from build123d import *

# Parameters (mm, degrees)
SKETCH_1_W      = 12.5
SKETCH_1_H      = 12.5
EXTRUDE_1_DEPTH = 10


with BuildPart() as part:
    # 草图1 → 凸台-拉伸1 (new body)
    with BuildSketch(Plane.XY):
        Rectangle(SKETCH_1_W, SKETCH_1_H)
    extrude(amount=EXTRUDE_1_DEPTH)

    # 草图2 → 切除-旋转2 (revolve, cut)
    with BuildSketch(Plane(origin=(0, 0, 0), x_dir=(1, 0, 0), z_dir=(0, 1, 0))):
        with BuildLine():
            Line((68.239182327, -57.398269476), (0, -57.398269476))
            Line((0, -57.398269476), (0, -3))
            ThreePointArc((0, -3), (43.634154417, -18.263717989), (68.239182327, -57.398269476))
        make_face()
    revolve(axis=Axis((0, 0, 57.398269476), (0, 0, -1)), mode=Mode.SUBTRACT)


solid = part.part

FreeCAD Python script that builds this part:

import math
import FreeCAD as App
import Part
import Sketcher
from FreeCAD import Vector
Q = App.Units.Quantity


def add_polygon(sketch, points):
    """Adds a closed chain of lines whose ends are joined by coincident constraints."""
    first, n = sketch.GeometryCount, len(points)
    for a, b in zip(points, points[1:] + points[:1]):
        sketch.addGeometry(Part.LineSegment(App.Vector(*a, 0), App.Vector(*b, 0)), False)
    for i in range(n):
        sketch.addConstraint(Sketcher.Constraint("Coincident", first + i, 2, first + (i + 1) % n, 1))

doc = App.newDocument("Part")
params = doc.addObject("Spreadsheet::Sheet", "Params")
for row, (alias, value) in enumerate([
    ("sketch1_width", "12.5 mm"),
    ("pad1_length", "10 mm"),
    ("sketch2_radius", "70 mm"),
    ("groove_angle", "360 deg"),
], start=1):
    params.set(f"A{row}", alias)
    params.set(f"B{row}", "=" + value)
    params.setAlias(f"B{row}", alias)

body = doc.addObject("PartDesign::Body", "Body")

# Sketch on XY plane
sketch1 = doc.addObject("Sketcher::SketchObject", "Sketch")
body.addObject(sketch1)
sketch1.AttachmentSupport = (doc.XY_Plane, [""])
sketch1.MapMode = "FlatFace"
add_polygon(sketch1, [(-6, 6), (-6, -6), (6, -6), (6, 6)])  # lines 0-3
sketch1.addConstraint(Sketcher.Constraint("Vertical", 0))
sketch1.addConstraint(Sketcher.Constraint("Horizontal", 1))
sketch1.addConstraint(Sketcher.Constraint("Vertical", 2))
sketch1.addConstraint(Sketcher.Constraint("Horizontal", 3))
sketch1.addConstraint(Sketcher.Constraint("Symmetric", 0, 2, 2, 2, -1, 1))
sketch1.addConstraint(Sketcher.Constraint("Equal", 3, 0))
sketch1.addConstraint(Sketcher.Constraint("DistanceX", 1, 1, 1, 2, Q("12.5 mm")))
sketch1.setExpression("Constraints[10]", "Params.sketch1_width")
pad1 = doc.addObject("PartDesign::Pad", "Pad")
body.addObject(pad1)
pad1.Profile = sketch1
pad1.setExpression("Length", "Params.pad1_length")

# Sketch on XZ plane
sketch2 = doc.addObject("Sketcher::SketchObject", "Sketch001")
body.addObject(sketch2)
sketch2.AttachmentSupport = (doc.XZ_Plane, [""])
sketch2.MapMode = "FlatFace"
sketch2.addGeometry(Part.LineSegment(Vector(0, 57, 0), Vector(68, 57, 0)), False)
sketch2.addGeometry(Part.ArcOfCircle(Part.Circle(Vector(0, 73, 0), Vector(0, 0, 1), 70), math.radians(-90), math.radians(-13)), False)
sketch2.addGeometry(Part.LineSegment(Vector(0, 3, 0), Vector(0, 57, 0)), False)
sketch2.addConstraint(Sketcher.Constraint("Coincident", 0, 2, 1, 2))
sketch2.addConstraint(Sketcher.Constraint("Coincident", 1, 1, 2, 1))
sketch2.addConstraint(Sketcher.Constraint("Coincident", 2, 2, 0, 1))
sketch2.addConstraint(Sketcher.Constraint("Horizontal", 0))
sketch2.addConstraint(Sketcher.Constraint("Vertical", 2))
sketch2.addConstraint(Sketcher.Constraint("PointOnObject", 1, 3, -2))
sketch2.addConstraint(Sketcher.Constraint("PointOnObject", 1, 1, -2))
sketch2.addConstraint(Sketcher.Constraint("Radius", 1, Q("70 mm")))
sketch2.addConstraint(Sketcher.Constraint("DistanceY", -1, 1, 1, 3, Q("73 mm")))
sketch2.addConstraint(Sketcher.Constraint("DistanceY", 2, 1, 2, 2, Q("54.398269 mm")))
sketch2.setExpression("Constraints[7]", "Params.sketch2_radius")
groove = doc.addObject("PartDesign::Groove", "Groove")
body.addObject(groove)
groove.Profile = sketch2
groove.ReferenceAxis = (sketch2, ["V_Axis"])
groove.setExpression("Angle", "Params.groove_angle")

doc.recompute()
